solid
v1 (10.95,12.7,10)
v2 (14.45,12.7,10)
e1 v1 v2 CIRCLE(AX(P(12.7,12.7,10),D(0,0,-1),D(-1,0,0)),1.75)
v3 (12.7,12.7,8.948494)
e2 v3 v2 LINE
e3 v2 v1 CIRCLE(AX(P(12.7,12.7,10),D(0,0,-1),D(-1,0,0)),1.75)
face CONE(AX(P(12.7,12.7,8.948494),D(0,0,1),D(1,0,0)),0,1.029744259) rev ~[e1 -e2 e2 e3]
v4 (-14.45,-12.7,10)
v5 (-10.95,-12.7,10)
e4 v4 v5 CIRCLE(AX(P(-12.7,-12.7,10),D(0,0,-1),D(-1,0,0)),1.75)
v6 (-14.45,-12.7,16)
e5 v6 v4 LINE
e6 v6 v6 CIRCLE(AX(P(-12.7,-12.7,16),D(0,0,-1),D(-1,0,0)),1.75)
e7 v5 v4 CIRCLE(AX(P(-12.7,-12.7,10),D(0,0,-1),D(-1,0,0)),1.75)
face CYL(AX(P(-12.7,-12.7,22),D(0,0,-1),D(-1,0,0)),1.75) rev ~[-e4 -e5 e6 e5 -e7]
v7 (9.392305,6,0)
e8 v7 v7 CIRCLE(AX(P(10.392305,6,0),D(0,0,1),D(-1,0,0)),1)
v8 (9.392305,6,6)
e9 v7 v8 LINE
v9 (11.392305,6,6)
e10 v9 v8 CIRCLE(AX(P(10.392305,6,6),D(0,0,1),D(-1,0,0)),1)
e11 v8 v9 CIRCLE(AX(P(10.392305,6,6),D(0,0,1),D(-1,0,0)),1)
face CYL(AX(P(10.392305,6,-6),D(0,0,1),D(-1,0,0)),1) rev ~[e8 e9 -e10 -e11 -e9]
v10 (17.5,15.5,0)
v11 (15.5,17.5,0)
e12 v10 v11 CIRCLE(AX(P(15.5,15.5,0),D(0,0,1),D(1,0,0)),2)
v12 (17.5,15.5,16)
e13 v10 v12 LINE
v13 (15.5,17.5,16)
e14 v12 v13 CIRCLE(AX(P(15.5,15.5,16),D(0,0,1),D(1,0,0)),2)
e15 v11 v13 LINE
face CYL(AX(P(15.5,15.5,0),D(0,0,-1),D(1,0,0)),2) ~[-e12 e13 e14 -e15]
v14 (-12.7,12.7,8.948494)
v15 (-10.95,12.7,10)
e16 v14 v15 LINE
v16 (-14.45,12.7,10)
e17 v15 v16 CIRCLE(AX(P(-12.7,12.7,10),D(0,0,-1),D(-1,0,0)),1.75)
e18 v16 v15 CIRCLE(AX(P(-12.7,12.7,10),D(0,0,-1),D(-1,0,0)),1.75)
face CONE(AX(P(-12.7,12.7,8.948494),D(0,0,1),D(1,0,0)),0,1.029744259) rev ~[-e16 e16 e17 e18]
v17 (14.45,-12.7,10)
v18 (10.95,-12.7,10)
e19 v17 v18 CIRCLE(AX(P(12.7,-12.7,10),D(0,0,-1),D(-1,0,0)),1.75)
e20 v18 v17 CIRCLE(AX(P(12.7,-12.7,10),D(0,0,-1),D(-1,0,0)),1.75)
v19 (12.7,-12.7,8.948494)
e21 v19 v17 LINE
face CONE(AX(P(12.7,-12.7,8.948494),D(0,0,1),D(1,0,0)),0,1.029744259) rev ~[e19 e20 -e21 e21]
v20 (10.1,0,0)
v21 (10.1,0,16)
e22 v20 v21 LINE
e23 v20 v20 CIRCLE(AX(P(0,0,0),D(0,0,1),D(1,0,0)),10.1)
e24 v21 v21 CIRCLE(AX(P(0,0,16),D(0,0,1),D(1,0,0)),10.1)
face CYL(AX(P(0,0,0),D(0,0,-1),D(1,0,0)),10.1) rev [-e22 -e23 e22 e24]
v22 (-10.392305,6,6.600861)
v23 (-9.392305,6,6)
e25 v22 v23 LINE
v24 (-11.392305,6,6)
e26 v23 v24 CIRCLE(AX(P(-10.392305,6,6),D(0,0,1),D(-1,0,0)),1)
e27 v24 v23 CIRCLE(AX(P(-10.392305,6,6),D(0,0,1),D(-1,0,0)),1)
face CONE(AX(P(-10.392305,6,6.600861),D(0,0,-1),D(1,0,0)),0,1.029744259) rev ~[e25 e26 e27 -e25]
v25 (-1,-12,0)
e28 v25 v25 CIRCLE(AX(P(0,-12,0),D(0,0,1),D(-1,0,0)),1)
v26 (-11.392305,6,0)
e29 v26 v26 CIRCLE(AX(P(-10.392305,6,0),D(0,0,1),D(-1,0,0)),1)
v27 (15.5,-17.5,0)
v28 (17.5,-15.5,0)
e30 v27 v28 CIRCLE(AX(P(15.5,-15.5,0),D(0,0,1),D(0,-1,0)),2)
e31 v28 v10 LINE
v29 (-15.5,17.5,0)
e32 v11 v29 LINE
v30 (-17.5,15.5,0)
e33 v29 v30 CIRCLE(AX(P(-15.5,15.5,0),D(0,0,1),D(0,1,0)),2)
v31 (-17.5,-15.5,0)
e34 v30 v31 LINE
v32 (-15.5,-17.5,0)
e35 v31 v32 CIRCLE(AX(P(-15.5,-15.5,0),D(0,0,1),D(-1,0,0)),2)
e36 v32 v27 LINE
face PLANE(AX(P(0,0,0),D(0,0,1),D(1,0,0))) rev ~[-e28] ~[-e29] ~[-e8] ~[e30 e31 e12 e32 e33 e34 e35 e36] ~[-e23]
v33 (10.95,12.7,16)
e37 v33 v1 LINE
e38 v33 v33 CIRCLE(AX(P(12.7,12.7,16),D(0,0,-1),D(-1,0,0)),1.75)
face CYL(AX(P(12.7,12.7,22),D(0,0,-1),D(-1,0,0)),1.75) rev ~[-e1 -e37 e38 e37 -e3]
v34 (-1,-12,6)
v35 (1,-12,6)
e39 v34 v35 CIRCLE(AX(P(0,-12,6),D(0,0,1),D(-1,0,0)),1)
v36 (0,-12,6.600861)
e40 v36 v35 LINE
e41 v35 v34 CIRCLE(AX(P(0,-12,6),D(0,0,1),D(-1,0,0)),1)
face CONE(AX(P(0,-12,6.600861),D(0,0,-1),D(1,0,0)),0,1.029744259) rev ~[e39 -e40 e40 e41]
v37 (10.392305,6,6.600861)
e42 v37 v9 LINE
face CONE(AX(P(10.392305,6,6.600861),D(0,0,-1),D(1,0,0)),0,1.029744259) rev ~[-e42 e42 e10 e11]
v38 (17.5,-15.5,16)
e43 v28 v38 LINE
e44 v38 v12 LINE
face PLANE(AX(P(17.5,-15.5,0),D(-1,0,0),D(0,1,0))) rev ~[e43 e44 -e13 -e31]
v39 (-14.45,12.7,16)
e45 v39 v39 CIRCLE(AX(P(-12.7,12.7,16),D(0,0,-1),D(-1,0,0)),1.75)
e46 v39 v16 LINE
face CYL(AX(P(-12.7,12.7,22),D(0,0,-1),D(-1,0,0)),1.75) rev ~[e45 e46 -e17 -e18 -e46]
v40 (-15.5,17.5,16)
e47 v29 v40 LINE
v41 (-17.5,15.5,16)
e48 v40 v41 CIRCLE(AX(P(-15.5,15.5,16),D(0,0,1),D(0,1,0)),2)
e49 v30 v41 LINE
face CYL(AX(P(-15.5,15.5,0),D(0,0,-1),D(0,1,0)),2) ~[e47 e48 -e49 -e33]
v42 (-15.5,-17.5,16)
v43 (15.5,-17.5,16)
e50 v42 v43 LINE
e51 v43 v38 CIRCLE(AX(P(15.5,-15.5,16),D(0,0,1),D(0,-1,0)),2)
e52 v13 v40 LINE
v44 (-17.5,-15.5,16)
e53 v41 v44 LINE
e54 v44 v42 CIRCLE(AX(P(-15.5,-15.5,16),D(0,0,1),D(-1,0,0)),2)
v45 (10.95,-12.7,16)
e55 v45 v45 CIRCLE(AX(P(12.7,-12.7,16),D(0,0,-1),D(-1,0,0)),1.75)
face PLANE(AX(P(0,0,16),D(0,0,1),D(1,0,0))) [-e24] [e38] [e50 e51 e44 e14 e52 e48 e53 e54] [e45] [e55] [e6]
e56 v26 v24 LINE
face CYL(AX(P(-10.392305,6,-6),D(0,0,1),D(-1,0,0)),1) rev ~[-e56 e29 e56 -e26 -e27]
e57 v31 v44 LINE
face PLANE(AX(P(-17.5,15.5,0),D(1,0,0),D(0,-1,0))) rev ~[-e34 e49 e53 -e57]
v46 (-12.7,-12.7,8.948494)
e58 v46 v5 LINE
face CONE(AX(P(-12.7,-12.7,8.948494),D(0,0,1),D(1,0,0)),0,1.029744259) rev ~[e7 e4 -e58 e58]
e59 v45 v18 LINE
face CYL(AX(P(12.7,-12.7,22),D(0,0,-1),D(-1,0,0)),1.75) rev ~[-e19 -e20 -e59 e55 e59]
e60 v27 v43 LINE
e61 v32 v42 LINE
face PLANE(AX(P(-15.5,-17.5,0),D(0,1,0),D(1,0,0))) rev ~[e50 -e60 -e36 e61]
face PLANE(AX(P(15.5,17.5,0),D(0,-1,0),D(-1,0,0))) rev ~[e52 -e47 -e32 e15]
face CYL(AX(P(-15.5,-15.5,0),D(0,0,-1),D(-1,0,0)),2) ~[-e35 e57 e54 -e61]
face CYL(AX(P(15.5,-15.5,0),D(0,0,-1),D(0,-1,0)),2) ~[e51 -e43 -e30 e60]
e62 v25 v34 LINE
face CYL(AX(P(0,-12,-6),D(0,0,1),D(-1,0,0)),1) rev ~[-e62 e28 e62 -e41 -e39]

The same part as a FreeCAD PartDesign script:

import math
import FreeCAD as App
import Part
import Sketcher

V = App.Vector

doc = App.newDocument("Part")
body = doc.addObject("PartDesign::Body", "Body")

# Sketch on XY plane
sketch1 = doc.addObject("Sketcher::SketchObject", "Sketch")
body.addObject(sketch1)
sketch1.AttachmentSupport = (doc.XY_Plane, [""])
sketch1.MapMode = "FlatFace"
sketch1.addGeometry(Part.LineSegment(V(-15.5, -17.5, 0), V(15.5, -17.5, 0)), False)
sketch1.addGeometry(Part.ArcOfCircle(Part.Circle(V(15.5, -15.5, 0), V(0, 0, 1), 2), math.radians(-90), math.radians(0)), False)
sketch1.addGeometry(Part.LineSegment(V(17.5, -15.5, 0), V(17.5, 15.5, 0)), False)
sketch1.addGeometry(Part.ArcOfCircle(Part.Circle(V(15.5, 15.5, 0), V(0, 0, 1), 2), math.radians(0), math.radians(90)), False)
sketch1.addGeometry(Part.LineSegment(V(15.5, 17.5, 0), V(-15.5, 17.5, 0)), False)
sketch1.addGeometry(Part.ArcOfCircle(Part.Circle(V(-15.5, 15.5, 0), V(0, 0, 1), 2), math.radians(90), math.radians(180)), False)
sketch1.addGeometry(Part.LineSegment(V(-17.5, 15.5, 0), V(-17.5, -15.5, 0)), False)
sketch1.addGeometry(Part.ArcOfCircle(Part.Circle(V(-15.5, -15.5, 0), V(0, 0, 1), 2), math.radians(180), math.radians(270)), False)
sketch1.addGeometry(Part.Circle(V(0, 0, 0), V(0, 0, 1), 10.1), False)
sketch1.addConstraint(Sketcher.Constraint("Tangent", 0, 2, 1, 1))
sketch1.addConstraint(Sketcher.Constraint("Tangent", 1, 2, 2, 1))
sketch1.addConstraint(Sketcher.Constraint("Tangent", 2, 2, 3, 1))
sketch1.addConstraint(Sketcher.Constraint("Tangent", 3, 2, 4, 1))
sketch1.addConstraint(Sketcher.Constraint("Tangent", 4, 2, 5, 1))
sketch1.addConstraint(Sketcher.Constraint("Tangent", 5, 2, 6, 1))
sketch1.addConstraint(Sketcher.Constraint("Tangent", 6, 2, 7, 1))
sketch1.addConstraint(Sketcher.Constraint("Tangent", 7, 2, 0, 1))
sketch1.addConstraint(Sketcher.Constraint("Horizontal", 0))
sketch1.addConstraint(Sketcher.Constraint("Vertical", 2))
sketch1.addConstraint(Sketcher.Constraint("Horizontal", 4))
sketch1.addConstraint(Sketcher.Constraint("Vertical", 6))
sketch1.addConstraint(Sketcher.Constraint("Coincident", 8, 3, -1, 1))
sketch1.addConstraint(Sketcher.Constraint("Equal", 1, 3))
sketch1.addConstraint(Sketcher.Constraint("Equal", 3, 5))
sketch1.addConstraint(Sketcher.Constraint("Equal", 5, 7))
sketch1.addConstraint(Sketcher.Constraint("Symmetric", 1, 3, 5, 3, -1, 1))
sketch1.addConstraint(Sketcher.Constraint("Equal", 4, 2))
sketch1.addConstraint(Sketcher.Constraint("Radius", 1, 2.0))
sketch1.addConstraint(Sketcher.Constraint("Diameter", 8, 20.2))
sketch1.addConstraint(Sketcher.Constraint("DistanceX", 0, 1, 0, 2, 31.0))
pad1 = doc.addObject("PartDesign::Pad", "Pad")
body.addObject(pad1)
pad1.Profile = sketch1
pad1.Length = 16

# Sketch on XY plane
sketch2 = doc.addObject("Sketcher::SketchObject", "Sketch001")
body.addObject(sketch2)
sketch2.AttachmentSupport = (doc.XY_Plane, [""])
sketch2.MapMode = "FlatFace"
sketch2.AttachmentOffset = App.Placement(V(0, 0, 16), App.Rotation())
sketch2.addGeometry(Part.Circle(V(-12.7, 12.7, 0), V(0, 0, 1), 1.8), False)
sketch2.addGeometry(Part.Circle(V(12.7, 12.7, 0), V(0, 0, 1), 1.8), False)
sketch2.addGeometry(Part.Circle(V(12.7, -12.7, 0), V(0, 0, 1), 1.8), False)
sketch2.addGeometry(Part.Circle(V(-12.7, -12.7, 0), V(0, 0, 1), 1.8), False)
sketch2.addConstraint(Sketcher.Constraint("Equal", 0, 1))
sketch2.addConstraint(Sketcher.Constraint("Equal", 1, 2))
sketch2.addConstraint(Sketcher.Constraint("Equal", 2, 3))
sketch2.addConstraint(Sketcher.Constraint("Symmetric", 0, 3, 2, 3, -1, 1))
sketch2.addConstraint(Sketcher.Constraint("Symmetric", 1, 3, 3, 3, -1, 1))
sketch2.addConstraint(Sketcher.Constraint("Symmetric", 0, 3, 1, 3, -2))
sketch2.addConstraint(Sketcher.Constraint("Diameter", 0, 3.5))
sketch2.addConstraint(Sketcher.Constraint("DistanceX", 0, 3, -1, 1, 12.7))
sketch2.addConstraint(Sketcher.Constraint("DistanceY", -1, 1, 0, 3, 12.7))
doc.recompute()
hole = doc.addObject("PartDesign::Hole", "Hole")
body.addObject(hole)
hole.Profile = sketch2
hole.ThreadType = "None"
hole.Diameter = 3.5
hole.DepthType = "Dimension"
hole.Depth = 6
hole.DrillPoint = "Angled"
hole.DrillPointAngle = 118

# Sketch on XY plane
sketch3 = doc.addObject("Sketcher::SketchObject", "Sketch002")
body.addObject(sketch3)
sketch3.AttachmentSupport = (doc.XY_Plane, [""])
sketch3.MapMode = "FlatFace"
sketch3.addGeometry(Part.Circle(V(0, -12, 0), V(0, 0, 1), 1), False)
sketch3.addGeometry(Part.Circle(V(10.4, 6, 0), V(0, 0, 1), 1), False)
sketch3.addGeometry(Part.Circle(V(-10.4, 6, 0), V(0, 0, 1), 1), False)
sketch3.addConstraint(Sketcher.Constraint("Equal", 0, 1))
sketch3.addConstraint(Sketcher.Constraint("Equal", 1, 2))
sketch3.addConstraint(Sketcher.Constraint("Symmetric", 1, 3, 2, 3, -2))
sketch3.addConstraint(Sketcher.Constraint("PointOnObject", 0, 3, -2))
sketch3.addConstraint(Sketcher.Constraint("Diameter", 0, 2.0))
sketch3.addConstraint(Sketcher.Constraint("DistanceY", 0, 3, -1, 1, 12.0))
sketch3.addConstraint(Sketcher.Constraint("DistanceY", -1, 1, 1, 3, 6.0))
sketch3.addConstraint(Sketcher.Constraint("DistanceX", 2, 3, 1, 3, 20.78461))
doc.recompute()
hole2 = doc.addObject("PartDesign::Hole", "Hole001")
body.addObject(hole2)
hole2.Profile = sketch3
hole2.ThreadType = "None"
hole2.Diameter = 2
hole2.DepthType = "Dimension"
hole2.Depth = 6
hole2.DrillPoint = "Angled"
hole2.DrillPointAngle = 118
hole2.Reversed = True

doc.recompute()
